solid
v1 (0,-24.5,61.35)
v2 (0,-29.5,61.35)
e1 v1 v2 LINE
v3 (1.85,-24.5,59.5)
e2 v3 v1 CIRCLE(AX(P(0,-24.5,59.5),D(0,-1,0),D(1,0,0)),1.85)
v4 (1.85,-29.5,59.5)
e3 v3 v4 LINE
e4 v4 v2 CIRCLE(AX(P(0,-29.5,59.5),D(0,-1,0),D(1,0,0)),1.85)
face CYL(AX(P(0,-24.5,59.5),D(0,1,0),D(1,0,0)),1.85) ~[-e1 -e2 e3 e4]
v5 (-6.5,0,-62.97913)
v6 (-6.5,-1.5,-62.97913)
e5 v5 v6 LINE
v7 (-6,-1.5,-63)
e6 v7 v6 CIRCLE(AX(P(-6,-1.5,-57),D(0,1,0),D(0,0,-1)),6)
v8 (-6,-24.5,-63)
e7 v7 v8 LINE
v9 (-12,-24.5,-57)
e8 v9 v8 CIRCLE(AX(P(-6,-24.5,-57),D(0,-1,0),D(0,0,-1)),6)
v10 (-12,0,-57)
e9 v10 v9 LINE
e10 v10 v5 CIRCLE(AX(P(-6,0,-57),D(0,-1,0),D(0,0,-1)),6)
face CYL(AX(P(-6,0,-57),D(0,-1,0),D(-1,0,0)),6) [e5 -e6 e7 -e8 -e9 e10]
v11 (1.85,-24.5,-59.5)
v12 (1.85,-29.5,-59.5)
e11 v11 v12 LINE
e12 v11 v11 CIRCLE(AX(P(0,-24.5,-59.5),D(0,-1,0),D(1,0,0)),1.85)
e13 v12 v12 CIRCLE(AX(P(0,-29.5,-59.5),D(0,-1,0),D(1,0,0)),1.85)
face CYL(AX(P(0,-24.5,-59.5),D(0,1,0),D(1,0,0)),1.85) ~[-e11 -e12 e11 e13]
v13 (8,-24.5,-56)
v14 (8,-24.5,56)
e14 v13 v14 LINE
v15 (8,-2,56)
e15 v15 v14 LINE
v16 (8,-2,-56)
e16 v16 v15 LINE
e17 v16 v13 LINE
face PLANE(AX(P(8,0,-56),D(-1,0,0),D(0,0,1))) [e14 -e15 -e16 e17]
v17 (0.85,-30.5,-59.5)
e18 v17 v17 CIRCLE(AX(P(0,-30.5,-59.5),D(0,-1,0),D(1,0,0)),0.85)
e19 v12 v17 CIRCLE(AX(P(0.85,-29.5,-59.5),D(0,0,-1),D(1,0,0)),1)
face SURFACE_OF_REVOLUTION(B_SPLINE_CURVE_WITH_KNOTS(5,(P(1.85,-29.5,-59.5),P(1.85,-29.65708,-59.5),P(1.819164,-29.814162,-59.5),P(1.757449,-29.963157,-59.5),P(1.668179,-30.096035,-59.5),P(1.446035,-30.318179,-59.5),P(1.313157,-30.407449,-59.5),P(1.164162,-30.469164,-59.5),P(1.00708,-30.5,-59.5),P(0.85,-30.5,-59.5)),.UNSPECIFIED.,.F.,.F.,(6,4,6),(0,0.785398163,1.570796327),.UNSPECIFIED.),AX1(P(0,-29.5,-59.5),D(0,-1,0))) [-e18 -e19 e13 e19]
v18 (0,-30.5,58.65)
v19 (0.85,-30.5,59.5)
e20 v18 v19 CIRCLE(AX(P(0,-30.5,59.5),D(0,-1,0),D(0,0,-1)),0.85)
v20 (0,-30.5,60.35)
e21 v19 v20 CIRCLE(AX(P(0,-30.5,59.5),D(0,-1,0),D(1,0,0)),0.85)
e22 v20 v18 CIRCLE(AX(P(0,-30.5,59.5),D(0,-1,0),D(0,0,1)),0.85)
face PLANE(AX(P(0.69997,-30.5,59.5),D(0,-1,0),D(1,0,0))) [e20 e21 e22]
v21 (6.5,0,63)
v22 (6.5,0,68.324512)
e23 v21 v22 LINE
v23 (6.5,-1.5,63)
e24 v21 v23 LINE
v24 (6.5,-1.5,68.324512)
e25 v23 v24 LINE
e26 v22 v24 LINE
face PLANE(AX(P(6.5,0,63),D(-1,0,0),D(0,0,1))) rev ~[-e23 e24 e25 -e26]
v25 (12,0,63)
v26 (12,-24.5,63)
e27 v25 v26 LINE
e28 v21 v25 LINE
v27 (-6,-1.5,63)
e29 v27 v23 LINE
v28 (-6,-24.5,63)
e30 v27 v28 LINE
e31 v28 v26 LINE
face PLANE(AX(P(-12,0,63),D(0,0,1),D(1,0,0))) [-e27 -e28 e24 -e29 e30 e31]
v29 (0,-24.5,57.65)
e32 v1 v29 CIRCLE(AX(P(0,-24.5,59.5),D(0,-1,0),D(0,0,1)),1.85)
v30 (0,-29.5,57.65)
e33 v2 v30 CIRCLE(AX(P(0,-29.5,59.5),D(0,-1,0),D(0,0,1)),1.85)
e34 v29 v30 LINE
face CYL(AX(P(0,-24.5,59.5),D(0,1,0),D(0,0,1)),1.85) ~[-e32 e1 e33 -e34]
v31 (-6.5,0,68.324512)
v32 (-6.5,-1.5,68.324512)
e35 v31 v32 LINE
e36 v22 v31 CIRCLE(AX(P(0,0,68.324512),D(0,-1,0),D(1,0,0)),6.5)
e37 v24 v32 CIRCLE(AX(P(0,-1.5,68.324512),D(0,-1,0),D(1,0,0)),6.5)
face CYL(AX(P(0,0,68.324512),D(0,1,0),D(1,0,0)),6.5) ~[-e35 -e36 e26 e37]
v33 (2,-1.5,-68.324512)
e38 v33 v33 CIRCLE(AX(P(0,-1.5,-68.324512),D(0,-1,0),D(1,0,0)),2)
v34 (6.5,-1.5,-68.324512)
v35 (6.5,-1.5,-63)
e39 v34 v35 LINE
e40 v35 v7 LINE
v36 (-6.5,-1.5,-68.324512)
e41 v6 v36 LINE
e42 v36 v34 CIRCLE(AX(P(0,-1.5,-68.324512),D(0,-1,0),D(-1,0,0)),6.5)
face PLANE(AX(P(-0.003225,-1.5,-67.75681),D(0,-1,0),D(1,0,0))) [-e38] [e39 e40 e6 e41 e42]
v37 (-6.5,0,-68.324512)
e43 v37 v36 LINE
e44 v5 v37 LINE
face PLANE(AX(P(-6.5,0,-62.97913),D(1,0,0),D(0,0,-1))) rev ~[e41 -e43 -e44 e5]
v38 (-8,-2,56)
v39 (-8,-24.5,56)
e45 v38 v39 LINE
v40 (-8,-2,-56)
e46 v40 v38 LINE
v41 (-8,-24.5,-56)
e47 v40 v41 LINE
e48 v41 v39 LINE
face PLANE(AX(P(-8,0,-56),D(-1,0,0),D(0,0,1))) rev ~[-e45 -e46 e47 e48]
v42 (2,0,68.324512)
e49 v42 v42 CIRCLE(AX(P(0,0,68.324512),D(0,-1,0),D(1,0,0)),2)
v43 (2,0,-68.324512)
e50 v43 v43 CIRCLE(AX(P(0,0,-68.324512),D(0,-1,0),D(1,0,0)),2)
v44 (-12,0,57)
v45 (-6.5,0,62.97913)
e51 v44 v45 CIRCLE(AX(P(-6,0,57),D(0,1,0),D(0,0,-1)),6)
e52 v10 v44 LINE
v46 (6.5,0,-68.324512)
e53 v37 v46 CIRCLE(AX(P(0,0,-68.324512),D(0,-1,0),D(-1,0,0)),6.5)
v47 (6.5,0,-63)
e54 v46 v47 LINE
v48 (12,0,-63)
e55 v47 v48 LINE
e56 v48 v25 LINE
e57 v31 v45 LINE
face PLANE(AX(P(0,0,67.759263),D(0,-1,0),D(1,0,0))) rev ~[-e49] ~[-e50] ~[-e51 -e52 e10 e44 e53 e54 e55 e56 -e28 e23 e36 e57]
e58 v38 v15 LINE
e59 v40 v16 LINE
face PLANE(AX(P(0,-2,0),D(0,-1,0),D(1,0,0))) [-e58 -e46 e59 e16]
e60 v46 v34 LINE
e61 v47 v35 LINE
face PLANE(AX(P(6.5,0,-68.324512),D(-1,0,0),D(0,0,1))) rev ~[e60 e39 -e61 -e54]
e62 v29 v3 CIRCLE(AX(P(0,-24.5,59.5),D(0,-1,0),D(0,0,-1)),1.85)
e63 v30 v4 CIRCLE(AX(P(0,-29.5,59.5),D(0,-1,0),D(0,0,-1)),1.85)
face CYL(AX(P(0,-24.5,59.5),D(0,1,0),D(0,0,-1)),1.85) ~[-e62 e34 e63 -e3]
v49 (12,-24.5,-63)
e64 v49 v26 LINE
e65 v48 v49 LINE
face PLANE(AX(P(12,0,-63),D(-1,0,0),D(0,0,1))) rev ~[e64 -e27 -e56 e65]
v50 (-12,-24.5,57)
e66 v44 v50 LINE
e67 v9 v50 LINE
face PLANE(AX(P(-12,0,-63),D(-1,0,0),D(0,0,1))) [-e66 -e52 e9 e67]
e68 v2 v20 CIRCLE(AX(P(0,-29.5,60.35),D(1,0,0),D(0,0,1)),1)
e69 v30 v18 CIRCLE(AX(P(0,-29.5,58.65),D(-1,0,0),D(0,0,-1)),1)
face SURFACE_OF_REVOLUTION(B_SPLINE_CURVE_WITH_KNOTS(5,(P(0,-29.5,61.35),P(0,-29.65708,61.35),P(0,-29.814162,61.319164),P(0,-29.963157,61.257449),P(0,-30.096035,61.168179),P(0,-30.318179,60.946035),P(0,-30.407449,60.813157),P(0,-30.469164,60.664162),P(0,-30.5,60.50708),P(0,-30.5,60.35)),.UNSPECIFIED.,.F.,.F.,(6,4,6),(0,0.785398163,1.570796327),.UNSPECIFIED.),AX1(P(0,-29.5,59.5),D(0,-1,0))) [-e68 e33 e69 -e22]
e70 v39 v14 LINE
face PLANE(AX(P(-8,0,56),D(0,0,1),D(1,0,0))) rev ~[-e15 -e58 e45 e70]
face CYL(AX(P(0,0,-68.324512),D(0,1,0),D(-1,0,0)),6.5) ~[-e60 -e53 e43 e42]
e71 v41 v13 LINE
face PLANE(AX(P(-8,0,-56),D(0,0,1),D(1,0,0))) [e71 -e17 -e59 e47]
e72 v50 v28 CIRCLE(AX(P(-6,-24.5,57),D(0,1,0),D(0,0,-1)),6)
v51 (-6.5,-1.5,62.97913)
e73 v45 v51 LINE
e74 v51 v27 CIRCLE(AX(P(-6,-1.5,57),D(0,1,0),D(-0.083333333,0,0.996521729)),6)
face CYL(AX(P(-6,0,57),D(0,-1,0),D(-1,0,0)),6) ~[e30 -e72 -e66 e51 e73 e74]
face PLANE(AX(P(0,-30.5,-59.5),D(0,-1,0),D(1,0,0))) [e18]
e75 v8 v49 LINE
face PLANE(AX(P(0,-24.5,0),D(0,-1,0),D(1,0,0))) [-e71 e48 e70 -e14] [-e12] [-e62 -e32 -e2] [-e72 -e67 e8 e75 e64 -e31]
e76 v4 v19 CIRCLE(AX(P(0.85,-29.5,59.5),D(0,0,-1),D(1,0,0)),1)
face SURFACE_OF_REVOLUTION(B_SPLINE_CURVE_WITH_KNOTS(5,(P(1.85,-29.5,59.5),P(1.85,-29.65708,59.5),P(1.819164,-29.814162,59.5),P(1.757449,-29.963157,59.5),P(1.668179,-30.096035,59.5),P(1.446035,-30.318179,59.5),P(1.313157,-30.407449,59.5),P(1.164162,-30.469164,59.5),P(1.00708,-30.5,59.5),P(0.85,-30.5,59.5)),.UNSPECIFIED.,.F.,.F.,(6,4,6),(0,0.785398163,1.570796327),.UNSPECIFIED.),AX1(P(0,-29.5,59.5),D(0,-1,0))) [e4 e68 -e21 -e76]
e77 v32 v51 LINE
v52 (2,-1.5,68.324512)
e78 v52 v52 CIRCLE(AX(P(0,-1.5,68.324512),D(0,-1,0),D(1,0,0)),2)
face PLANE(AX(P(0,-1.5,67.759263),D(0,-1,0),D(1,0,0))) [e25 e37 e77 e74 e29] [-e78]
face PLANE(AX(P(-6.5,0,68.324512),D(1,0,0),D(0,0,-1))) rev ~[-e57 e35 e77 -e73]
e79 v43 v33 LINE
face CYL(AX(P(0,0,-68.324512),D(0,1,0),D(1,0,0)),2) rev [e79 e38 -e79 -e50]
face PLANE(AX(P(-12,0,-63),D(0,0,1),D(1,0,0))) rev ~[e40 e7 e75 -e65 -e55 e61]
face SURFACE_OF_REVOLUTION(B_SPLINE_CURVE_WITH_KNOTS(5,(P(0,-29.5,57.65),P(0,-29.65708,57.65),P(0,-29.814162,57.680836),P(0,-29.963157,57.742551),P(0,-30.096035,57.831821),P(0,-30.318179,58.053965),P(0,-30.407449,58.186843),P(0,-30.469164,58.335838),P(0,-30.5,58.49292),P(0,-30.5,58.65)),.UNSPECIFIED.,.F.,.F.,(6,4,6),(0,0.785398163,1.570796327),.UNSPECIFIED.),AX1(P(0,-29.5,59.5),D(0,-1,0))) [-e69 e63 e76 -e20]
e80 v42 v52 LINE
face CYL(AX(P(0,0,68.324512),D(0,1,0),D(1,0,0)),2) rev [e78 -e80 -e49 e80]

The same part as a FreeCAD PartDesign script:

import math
import FreeCAD as App
import Part
import Sketcher
from FreeCAD import Vector
Q = App.Units.Quantity


def edges_at(feature, points):
    """Names of the edges that pass closest to the given points."""
    edges = feature.Shape.Edges
    near = lambda p: min(range(len(edges)), key=lambda i: edges[i].distToShape(Part.Vertex(*p))[0])
    return sorted({f"Edge{near(p) + 1}" for p in points})

doc = App.newDocument("Part")
body = doc.addObject("PartDesign::Body", "Body")

sketch1 = doc.addObject("Sketcher::SketchObject", "Sketch")
body.addObject(sketch1)
sketch1.AttachmentSupport = (doc.XZ_Plane, [""])
sketch1.MapMode = "FlatFace"
sketch1.addGeometry([
    Part.LineSegment(Vector(-12, 63, 0), Vector(-12, -63, 0)),
    Part.LineSegment(Vector(-12, -63, 0), Vector(12, -63, 0)),
    Part.LineSegment(Vector(12, -63, 0), Vector(12, 63, 0)),
    Part.LineSegment(Vector(12, 63, 0), Vector(-12, 63, 0)),
    Part.LineSegment(Vector(8, -56, 0), Vector(-8, -56, 0)),
    Part.LineSegment(Vector(-8, -56, 0), Vector(-8, 56, 0)),
    Part.LineSegment(Vector(-8, 56, 0), Vector(8, 56, 0)),
    Part.LineSegment(Vector(8, 56, 0), Vector(8, -56, 0)),
], False)
sketch1.addConstraint([
    Sketcher.Constraint("Coincident", 0, 2, 1, 1),
    Sketcher.Constraint("Coincident", 1, 2, 2, 1),
    Sketcher.Constraint("Coincident", 2, 2, 3, 1),
    Sketcher.Constraint("Coincident", 3, 2, 0, 1),
    Sketcher.Constraint("Coincident", 4, 2, 5, 1),
    Sketcher.Constraint("Coincident", 5, 2, 6, 1),
    Sketcher.Constraint("Coincident", 6, 2, 7, 1),
    Sketcher.Constraint("Coincident", 7, 2, 4, 1),
    Sketcher.Constraint("Vertical", 0),
    Sketcher.Constraint("Horizontal", 1),
    Sketcher.Constraint("Vertical", 2),
    Sketcher.Constraint("Horizontal", 3),
    Sketcher.Constraint("Horizontal", 4),
    Sketcher.Constraint("Vertical", 5),
    Sketcher.Constraint("Horizontal", 6),
    Sketcher.Constraint("Vertical", 7),
    Sketcher.Constraint("Symmetric", 0, 2, 2, 2, -1, 1),
    Sketcher.Constraint("Symmetric", 4, 2, 6, 2, -1, 1),
    Sketcher.Constraint("DistanceX", 1, 1, 1, 2, Q("24 mm")),
    Sketcher.Constraint("DistanceX", 4, 2, 4, 1, Q("16 mm")),
    Sketcher.Constraint("DistanceY", 0, 2, 0, 1, Q("126 mm")),
    Sketcher.Constraint("DistanceY", 5, 1, 5, 2, Q("112 mm")),
])
pad1 = doc.addObject("PartDesign::Pad", "Pad")
body.addObject(pad1)
pad1.Profile = sketch1
pad1.Length = 24.5

sketch2 = doc.addObject("Sketcher::SketchObject", "Sketch001")
body.addObject(sketch2)
sketch2.AttachmentSupport = (doc.XZ_Plane, [""])
sketch2.MapMode = "FlatFace"
sketch2.addGeometry([
    Part.LineSegment(Vector(-8, 56, 0), Vector(-8, -56, 0)),
    Part.LineSegment(Vector(-8, -56, 0), Vector(8, -56, 0)),
    Part.LineSegment(Vector(8, -56, 0), Vector(8, 56, 0)),
    Part.LineSegment(Vector(8, 56, 0), Vector(-8, 56, 0)),
], False)
sketch2.addConstraint([
    Sketcher.Constraint("Coincident", 0, 2, 1, 1),
    Sketcher.Constraint("Coincident", 1, 2, 2, 1),
    Sketcher.Constraint("Coincident", 2, 2, 3, 1),
    Sketcher.Constraint("Coincident", 3, 2, 0, 1),
    Sketcher.Constraint("Vertical", 0),
    Sketcher.Constraint("Horizontal", 1),
    Sketcher.Constraint("Vertical", 2),
    Sketcher.Constraint("Horizontal", 3),
    Sketcher.Constraint("Symmetric", 0, 2, 2, 2, -1, 1),
    Sketcher.Constraint("DistanceX", 1, 1, 1, 2, Q("16 mm")),
    Sketcher.Constraint("DistanceY", 0, 2, 0, 1, Q("112 mm")),
])
pad2 = doc.addObject("PartDesign::Pad", "Pad001")
body.addObject(pad2)
pad2.Profile = sketch2
pad2.Length = 2

sketch3 = doc.addObject("Sketcher::SketchObject", "Sketch002")
body.addObject(sketch3)
sketch3.AttachmentSupport = (doc.XZ_Plane, [""])
sketch3.MapMode = "FlatFace"
sketch3.AttachmentOffset = App.Placement(Vector(0, 0, 24.5), App.Rotation())
sketch3.addGeometry([
    Part.ArcOfCircle(Part.Circle(Vector(0, 59.5, 0), Vector(0, 0, 1), 1.9), math.radians(-90), math.radians(0)),
    Part.ArcOfCircle(Part.Circle(Vector(0, 59.5, 0), Vector(0, 0, 1), 1.9), math.radians(0), math.radians(90)),
    Part.ArcOfCircle(Part.Circle(Vector(0, 59.5, 0), Vector(0, 0, 1), 1.9), math.radians(90), math.radians(270)),
    Part.Circle(Vector(0, -59.5, 0), Vector(0, 0, 1), 1.9),
], False)
sketch3.addConstraint([
    Sketcher.Constraint("Tangent", 0, 2, 1, 1),
    Sketcher.Constraint("Tangent", 1, 2, 2, 1),
    Sketcher.Constraint("Tangent", 2, 2, 0, 1),
    Sketcher.Constraint("Equal", 2, 3),
    Sketcher.Constraint("Symmetric", 0, 3, 3, 3, -1, 1),
    Sketcher.Constraint("PointOnObject", 0, 3, -2),
    Sketcher.Constraint("PointOnObject", 1, 2, -2),
    Sketcher.Constraint("PointOnObject", 2, 2, -2),
    Sketcher.Constraint("Horizontal", 2, 3, 0, 2),
    Sketcher.Constraint("Diameter", 3, Q("3.7 mm")),
    Sketcher.Constraint("DistanceY", 3, 3, 0, 3, Q("119 mm")),
])
pad3 = doc.addObject("PartDesign::Pad", "Pad002")
body.addObject(pad3)
pad3.Profile = sketch3
pad3.Length = 6
doc.recompute()

fillet = doc.addObject("PartDesign::Fillet", "Fillet")
body.addObject(fillet)
fillet.Base = (pad3, edges_at(pad3, [(-12, -12.25, -63), (-12, -12.25, 63)]))
fillet.Radius = 6

sketch4 = doc.addObject("Sketcher::SketchObject", "Sketch003")
body.addObject(sketch4)
sketch4.AttachmentSupport = (doc.XZ_Plane, [""])
sketch4.MapMode = "FlatFace"
sketch4.addGeometry([
    Part.LineSegment(Vector(6.5, 63, 0), Vector(6.5, 68.3, 0)),
    Part.ArcOfCircle(Part.Circle(Vector(0, 68.3, 0), Vector(0, 0, 1), 6.5), math.radians(0), math.radians(180)),
    Part.LineSegment(Vector(-6.5, 68.3, 0), Vector(-6.5, 63, 0)),
    Part.ArcOfCircle(Part.Circle(Vector(-6, 57, 0), Vector(0, 0, 1), 6), math.radians(90), math.radians(94.78)),
    Part.LineSegment(Vector(-6, 63, 0), Vector(6.5, 63, 0)),
    Part.Circle(Vector(0, 68.3, 0), Vector(0, 0, 1), 2),
    Part.ArcOfCircle(Part.Circle(Vector(0, -68.3, 0), Vector(0, 0, 1), 6.5), math.radians(180), math.radians(360)),
    Part.LineSegment(Vector(6.5, -68.3, 0), Vector(6.5, -63, 0)),
    Part.LineSegment(Vector(6.5, -63, 0), Vector(-6, -63, 0)),
    Part.ArcOfCircle(Part.Circle(Vector(-6, -57, 0), Vector(0, 0, 1), 6), math.radians(-94.78), math.radians(-90)),
    Part.LineSegment(Vector(-6.5, -63, 0), Vector(-6.5, -68.3, 0)),
    Part.Circle(Vector(0, -68.3, 0), Vector(0, 0, 1), 2),
], False)
sketch4.addConstraint([
    Sketcher.Constraint("Tangent", 0, 2, 1, 1),
    Sketcher.Constraint("Tangent", 1, 2, 2, 1),
    Sketcher.Constraint("Coincident", 2, 2, 3, 2),
    Sketcher.Constraint("Tangent", 3, 1, 4, 1),
    Sketcher.Constraint("Coincident", 4, 2, 0, 1),
    Sketcher.Constraint("Tangent", 6, 2, 7, 1),
    Sketcher.Constraint("Coincident", 7, 2, 8, 1),
    Sketcher.Constraint("Tangent", 8, 2, 9, 2),
    Sketcher.Constraint("Coincident", 9, 1, 10, 1),
    Sketcher.Constraint("Tangent", 10, 2, 6, 1),
    Sketcher.Constraint("Vertical", 0),
    Sketcher.Constraint("Vertical", 2),
    Sketcher.Constraint("Horizontal", 4),
    Sketcher.Constraint("Vertical", 7),
    Sketcher.Constraint("Horizontal", 8),
    Sketcher.Constraint("Vertical", 10),
    Sketcher.Constraint("Coincident", 5, 3, 1, 3),
    Sketcher.Constraint("Coincident", 11, 3, 6, 3),
    Sketcher.Constraint("Equal", 1, 6),
    Sketcher.Constraint("Equal", 3, 9),
    Sketcher.Constraint("Equal", 5, 11),
    Sketcher.Constraint("Symmetric", 1, 3, 6, 3, -1, 1),
    Sketcher.Constraint("Symmetric", 3, 3, 9, 3, -1),
    Sketcher.Constraint("PointOnObject", 1, 3, -2),
    Sketcher.Constraint("Diameter", 5, Q("4 mm")),
    Sketcher.Constraint("Radius", 3, Q("6 mm")),
    Sketcher.Constraint("Radius", 1, Q("6.5 mm")),
    Sketcher.Constraint("DistanceX", 4, 1, 4, 2, Q("12.5 mm")),
    Sketcher.Constraint("DistanceY", -1, 1, 3, 3, Q("57 mm")),
    Sketcher.Constraint("DistanceY", 2, 2, 2, 1, Q("5.345382 mm")),
])
pad4 = doc.addObject("PartDesign::Pad", "Pad003")
body.addObject(pad4)
pad4.Profile = sketch4
pad4.Length = 1.5
doc.recompute()

fillet2 = doc.addObject("PartDesign::Fillet", "Fillet001")
body.addObject(fillet2)
fillet2.Base = (pad4, edges_at(pad4, [(-1.85, -30.5, 59.5), (-1.85, -30.5, -59.5)]))
fillet2.Radius = 1

doc.recompute()
